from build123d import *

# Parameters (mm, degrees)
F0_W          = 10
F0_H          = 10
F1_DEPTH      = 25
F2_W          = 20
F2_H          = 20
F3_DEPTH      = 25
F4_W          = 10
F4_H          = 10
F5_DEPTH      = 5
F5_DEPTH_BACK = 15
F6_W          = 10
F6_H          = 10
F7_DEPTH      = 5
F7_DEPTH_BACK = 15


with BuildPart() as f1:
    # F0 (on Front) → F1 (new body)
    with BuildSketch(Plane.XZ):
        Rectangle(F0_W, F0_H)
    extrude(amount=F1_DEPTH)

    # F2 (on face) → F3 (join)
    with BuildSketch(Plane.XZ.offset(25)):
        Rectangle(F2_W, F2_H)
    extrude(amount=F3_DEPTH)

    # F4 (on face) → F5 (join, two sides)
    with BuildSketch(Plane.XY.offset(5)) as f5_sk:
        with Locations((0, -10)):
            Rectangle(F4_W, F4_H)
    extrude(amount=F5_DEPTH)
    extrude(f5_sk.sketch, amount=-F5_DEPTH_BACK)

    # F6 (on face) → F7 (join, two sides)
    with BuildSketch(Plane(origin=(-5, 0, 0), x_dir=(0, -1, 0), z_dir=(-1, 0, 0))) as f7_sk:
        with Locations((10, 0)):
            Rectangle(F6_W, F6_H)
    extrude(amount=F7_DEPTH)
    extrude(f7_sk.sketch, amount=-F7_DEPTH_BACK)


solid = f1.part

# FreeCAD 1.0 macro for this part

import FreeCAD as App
import Part
import Sketcher
from FreeCAD import Vector
Q = App.Units.Quantity

doc = App.newDocument("Part")
body = doc.addObject("PartDesign::Body", "Body")

# Sketch on XZ plane
sketch1 = body.newObject("Sketcher::SketchObject", "Sketch")
sketch1.AttachmentSupport = (doc.getObject("XZ_Plane"), [""])
sketch1.MapMode = "FlatFace"
sketch1.addGeometry([
    Part.LineSegment(Vector(-5, 5, 0), Vector(-5, -5, 0)),
    Part.LineSegment(Vector(-5, -5, 0), Vector(5, -5, 0)),
    Part.LineSegment(Vector(5, -5, 0), Vector(5, 5, 0)),
    Part.LineSegment(Vector(5, 5, 0), Vector(-5, 5, 0)),
], False)
sketch1.addConstraint([
    Sketcher.Constraint("Coincident", 0, 2, 1, 1),
    Sketcher.Constraint("Coincident", 1, 2, 2, 1),
    Sketcher.Constraint("Coincident", 2, 2, 3, 1),
    Sketcher.Constraint("Coincident", 3, 2, 0, 1),
    Sketcher.Constraint("Vertical", 0),
    Sketcher.Constraint("Horizontal", 1),
    Sketcher.Constraint("Vertical", 2),
    Sketcher.Constraint("Horizontal", 3),
    Sketcher.Constraint("Symmetric", 0, 2, 2, 2, -1, 1),
    Sketcher.Constraint("Equal", 3, 0),
    Sketcher.Constraint("DistanceX", 1, 1, 1, 2, Q("10 mm")),
])
pad1 = body.newObject("PartDesign::Pad", "Pad")
pad1.Profile = sketch1
pad1.Length = 25

# Sketch on XZ plane
sketch2 = body.newObject("Sketcher::SketchObject", "Sketch001")
sketch2.AttachmentSupport = (doc.getObject("XZ_Plane"), [""])
sketch2.MapMode = "FlatFace"
sketch2.AttachmentOffset = App.Placement(Vector(0, 0, 25), App.Rotation())
sketch2.addGeometry([
    Part.LineSegment(Vector(-10, 10, 0), Vector(-10, -10, 0)),
    Part.LineSegment(Vector(-10, -10, 0), Vector(10, -10, 0)),
    Part.LineSegment(Vector(10, -10, 0), Vector(10, 10, 0)),
    Part.LineSegment(Vector(10, 10, 0), Vector(-10, 10, 0)),
], False)
sketch2.addConstraint([
    Sketcher.Constraint("Coincident", 0, 2, 1, 1),
    Sketcher.Constraint("Coincident", 1, 2, 2, 1),
    Sketcher.Constraint("Coincident", 2, 2, 3, 1),
    Sketcher.Constraint("Coincident", 3, 2, 0, 1),
    Sketcher.Constraint("Vertical", 0),
    Sketcher.Constraint("Horizontal", 1),
    Sketcher.Constraint("Vertical", 2),
    Sketcher.Constraint("Horizontal", 3),
    Sketcher.Constraint("Symmetric", 0, 2, 2, 2, -1, 1),
    Sketcher.Constraint("Equal", 3, 0),
    Sketcher.Constraint("DistanceX", 1, 1, 1, 2, Q("20 mm")),
])
pad2 = body.newObject("PartDesign::Pad", "Pad001")
pad2.Profile = sketch2
pad2.Length = 25

# Sketch on XY plane
sketch3 = body.newObject("Sketcher::SketchObject", "Sketch002")
sketch3.AttachmentSupport = (doc.getObject("XY_Plane"), [""])
sketch3.MapMode = "FlatFace"
sketch3.AttachmentOffset = App.Placement(Vector(0, 0, 5), App.Rotation())
sketch3.addGeometry([
    Part.LineSegment(Vector(-5, -5, 0), Vector(-5, -15, 0)),
    Part.LineSegment(Vector(-5, -15, 0), Vector(5, -15, 0)),
    Part.LineSegment(Vector(5, -15, 0), Vector(5, -5, 0)),
    Part.LineSegment(Vector(5, -5, 0), Vector(-5, -5, 0)),
], False)
sketch3.addConstraint([
    Sketcher.Constraint("Coincident", 0, 2, 1, 1),
    Sketcher.Constraint("Coincident", 1, 2, 2, 1),
    Sketcher.Constraint("Coincident", 2, 2, 3, 1),
    Sketcher.Constraint("Coincident", 3, 2, 0, 1),
    Sketcher.Constraint("Vertical", 0),
    Sketcher.Constraint("Horizontal", 1),
    Sketcher.Constraint("Vertical", 2),
    Sketcher.Constraint("Horizontal", 3),
    Sketcher.Constraint("Equal", 3, 0),
    Sketcher.Constraint("DistanceX", 1, 1, 1, 2, Q("10 mm")),
    Sketcher.Constraint("DistanceX", 0, 2, -1, 1, Q("5 mm")),
    Sketcher.Constraint("DistanceY", 0, 2, -1, 1, Q("15 mm")),
])
pad3 = body.newObject("PartDesign::Pad", "Pad002")
pad3.Profile = sketch3
pad3.Type = "TwoLengths"
pad3.Length = 5
pad3.Length2 = 15

# Sketch on YZ plane
sketch4 = body.newObject("Sketcher::SketchObject", "Sketch003")
sketch4.AttachmentSupport = (doc.getObject("YZ_Plane"), [""])
sketch4.MapMode = "FlatFace"
sketch4.AttachmentOffset = App.Placement(Vector(0, 0, -5), App.Rotation())
sketch4.addGeometry([
    Part.LineSegment(Vector(-5, 5, 0), Vector(-5, -5, 0)),
    Part.LineSegment(Vector(-5, -5, 0), Vector(-15, -5, 0)),
    Part.LineSegment(Vector(-15, -5, 0), Vector(-15, 5, 0)),
    Part.LineSegment(Vector(-15, 5, 0), Vector(-5, 5, 0)),
], False)
sketch4.addConstraint([
    Sketcher.Constraint("Coincident", 0, 2, 1, 1),
    Sketcher.Constraint("Coincident", 1, 2, 2, 1),
    Sketcher.Constraint("Coincident", 2, 2, 3, 1),
    Sketcher.Constraint("Coincident", 3, 2, 0, 1),
    Sketcher.Constraint("Vertical", 0),
    Sketcher.Constraint("Horizontal", 1),
    Sketcher.Constraint("Vertical", 2),
    Sketcher.Constraint("Horizontal", 3),
    Sketcher.Constraint("Equal", 3, 0),
    Sketcher.Constraint("DistanceX", 1, 2, 1, 1, Q("10 mm")),
    Sketcher.Constraint("DistanceX", 0, 2, -1, 1, Q("5 mm")),
    Sketcher.Constraint("DistanceY", 0, 2, -1, 1, Q("5 mm")),
])
pad4 = body.newObject("PartDesign::Pad", "Pad003")
pad4.Profile = sketch4
pad4.Type = "TwoLengths"
pad4.Length = 5
pad4.Length2 = 15
pad4.Reversed = True

doc.recompute()
